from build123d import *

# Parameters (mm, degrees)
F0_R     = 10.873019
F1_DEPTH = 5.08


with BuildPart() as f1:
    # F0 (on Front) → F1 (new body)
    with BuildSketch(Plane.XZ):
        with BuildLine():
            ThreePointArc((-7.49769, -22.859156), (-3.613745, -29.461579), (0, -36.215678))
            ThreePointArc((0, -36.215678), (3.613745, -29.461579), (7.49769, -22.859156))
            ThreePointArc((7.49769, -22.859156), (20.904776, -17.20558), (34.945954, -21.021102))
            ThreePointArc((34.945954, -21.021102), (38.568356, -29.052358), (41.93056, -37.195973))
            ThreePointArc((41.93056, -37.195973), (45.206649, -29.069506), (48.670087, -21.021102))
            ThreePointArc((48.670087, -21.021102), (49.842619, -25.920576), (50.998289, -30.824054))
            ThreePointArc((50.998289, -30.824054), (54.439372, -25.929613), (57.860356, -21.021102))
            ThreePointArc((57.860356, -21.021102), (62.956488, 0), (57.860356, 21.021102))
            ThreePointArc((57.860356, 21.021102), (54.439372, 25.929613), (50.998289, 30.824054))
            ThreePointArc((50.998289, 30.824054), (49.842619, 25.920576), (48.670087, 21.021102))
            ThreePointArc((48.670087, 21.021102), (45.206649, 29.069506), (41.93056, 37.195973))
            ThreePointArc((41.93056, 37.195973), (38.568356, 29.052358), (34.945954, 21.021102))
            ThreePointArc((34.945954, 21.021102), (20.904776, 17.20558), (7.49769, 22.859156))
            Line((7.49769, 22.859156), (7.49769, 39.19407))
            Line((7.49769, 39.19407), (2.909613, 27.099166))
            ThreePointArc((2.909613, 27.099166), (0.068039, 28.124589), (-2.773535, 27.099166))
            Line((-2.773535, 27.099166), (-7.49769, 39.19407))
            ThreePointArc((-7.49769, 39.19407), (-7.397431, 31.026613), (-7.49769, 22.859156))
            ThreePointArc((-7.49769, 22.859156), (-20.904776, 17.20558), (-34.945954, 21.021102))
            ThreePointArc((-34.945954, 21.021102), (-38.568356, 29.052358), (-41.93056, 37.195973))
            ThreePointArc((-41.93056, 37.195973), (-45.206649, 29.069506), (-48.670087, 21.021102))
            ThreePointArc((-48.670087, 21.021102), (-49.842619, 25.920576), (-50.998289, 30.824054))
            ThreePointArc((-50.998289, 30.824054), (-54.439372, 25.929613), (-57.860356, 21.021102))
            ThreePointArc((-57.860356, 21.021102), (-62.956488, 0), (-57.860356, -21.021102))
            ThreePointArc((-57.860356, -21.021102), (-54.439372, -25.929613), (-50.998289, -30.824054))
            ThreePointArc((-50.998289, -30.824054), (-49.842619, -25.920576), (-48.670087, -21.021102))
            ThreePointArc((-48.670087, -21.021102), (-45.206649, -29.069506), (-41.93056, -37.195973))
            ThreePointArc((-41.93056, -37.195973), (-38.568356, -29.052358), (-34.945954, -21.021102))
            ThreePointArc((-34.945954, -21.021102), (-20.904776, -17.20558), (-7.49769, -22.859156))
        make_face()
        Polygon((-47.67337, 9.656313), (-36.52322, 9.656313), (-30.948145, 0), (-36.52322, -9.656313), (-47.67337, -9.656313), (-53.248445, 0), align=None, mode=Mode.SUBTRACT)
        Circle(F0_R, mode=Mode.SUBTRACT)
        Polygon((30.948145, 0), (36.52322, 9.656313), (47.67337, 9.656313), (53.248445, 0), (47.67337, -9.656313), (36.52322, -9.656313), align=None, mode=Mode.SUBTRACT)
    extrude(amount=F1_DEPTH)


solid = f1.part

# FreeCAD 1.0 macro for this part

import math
import FreeCAD as App
import Part
import Sketcher
from FreeCAD import Vector
Q = App.Units.Quantity

doc = App.newDocument("Part")
params = doc.addObject("Spreadsheet::Sheet", "Params")
for row, (alias, value) in enumerate([
    ("pad1_length", "0.2 in"),
], start=1):
    params.set(f"A{row}", alias)
    params.set(f"B{row}", "=" + value)
    params.setAlias(f"B{row}", alias)

body = doc.addObject("PartDesign::Body", "Body")

# Sketch on XZ plane
sketch1 = doc.addObject("Sketcher::SketchObject", "Sketch")
body.addObject(sketch1)
sketch1.AttachmentSupport = (doc.XZ_Plane, [""])
sketch1.MapMode = "FlatFace"
sketch1.addGeometry(Part.ArcOfCircle(Part.Circle(Vector(-168.741374, -122.156052, 0), Vector(0, 0, 1), 189.365781), math.radians(26.98985), math.radians(31.625544)), False)
sketch1.addGeometry(Part.ArcOfCircle(Part.Circle(Vector(168.741374, -122.156052, 0), Vector(0, 0, 1), 189.365781), math.radians(148.374456), math.radians(153.01015)), False)
sketch1.addGeometry(Part.ArcOfCircle(Part.Circle(Vector(22.3953, -39.464063, 0), Vector(0, 0, 1), 22.308333), math.radians(55.764247), math.radians(131.897858)), False)
sketch1.addGeometry(Part.ArcOfCircle(Part.Circle(Vector(-212.868903, -137.627579, 0), Vector(0, 0, 1), 273.87821), math.radians(21.512346), math.radians(25.198799)), False)
sketch1.addGeometry(Part.ArcOfCircle(Part.Circle(Vector(394.369284, -174.553882, 0), Vector(0, 0, 1), 378.2595), math.radians(156.052918), math.radians(158.707368)), False)
sketch1.addGeometry(Part.ArcOfCircle(Part.Circle(Vector(-1374.945116, -364.307794, 0), Vector(0, 0, 1), 1464.420021), math.radians(13.163117), math.radians(13.55733)), False)
sketch1.addGeometry(Part.ArcOfCircle(Part.Circle(Vector(-1140.852711, 810.774919, 0), Vector(0, 0, 1), 1459.039971), math.radians(-35.226973), math.radians(-34.757072)), False)
sketch1.addGeometry(Part.ArcOfCircle(Part.Circle(Vector(17.053312, 0, 0), Vector(0, 0, 1), 45.903176), math.radians(-27.254542), math.radians(27.254542)), False)
sketch1.addGeometry(Part.ArcOfCircle(Part.Circle(Vector(-1140.852711, -810.774919, 0), Vector(0, 0, 1), 1459.039971), math.radians(34.757072), math.radians(35.226973)), False)
sketch1.addGeometry(Part.ArcOfCircle(Part.Circle(Vector(-1374.945116, 364.307794, 0), Vector(0, 0, 1), 1464.420021), math.radians(-13.55733), math.radians(-13.163117)), False)
sketch1.addGeometry(Part.ArcOfCircle(Part.Circle(Vector(394.369284, 174.553882, 0), Vector(0, 0, 1), 378.2595), math.radians(-158.707368), math.radians(-156.052918)), False)
sketch1.addGeometry(Part.ArcOfCircle(Part.Circle(Vector(-212.868903, 137.627579, 0), Vector(0, 0, 1), 273.87821), math.radians(-25.198799), math.radians(-21.512346)), False)
sketch1.addGeometry(Part.ArcOfCircle(Part.Circle(Vector(22.3953, 39.464063, 0), Vector(0, 0, 1), 22.308333), math.radians(-131.897858), math.radians(-55.764247)), False)
sketch1.addGeometry(Part.LineSegment(Vector(7.49769, 22.859156, 0), Vector(7.49769, 39.19407, 0)), False)
sketch1.addGeometry(Part.LineSegment(Vector(7.49769, 39.19407, 0), Vector(2.909613, 27.099166, 0)), False)
sketch1.addGeometry(Part.ArcOfCircle(Part.Circle(Vector(0.068039, 23.674701, 0), Vector(0, 0, 1), 4.449888), math.radians(50.314579), math.radians(129.685421)), False)
sketch1.addGeometry(Part.LineSegment(Vector(-2.773535, 27.099166, 0), Vector(-7.49769, 39.19407, 0)), False)
sketch1.addGeometry(Part.ArcOfCircle(Part.Circle(Vector(-340.122701, 31.026613, 0), Vector(0, 0, 1), 332.72527), math.radians(-1.406589), math.radians(1.406589)), False)
sketch1.addGeometry(Part.ArcOfCircle(Part.Circle(Vector(-22.3953, 39.464063, 0), Vector(0, 0, 1), 22.308333), math.radians(-124.235753), math.radians(-48.102142)), False)
sketch1.addGeometry(Part.ArcOfCircle(Part.Circle(Vector(212.868903, 137.627579, 0), Vector(0, 0, 1), 273.87821), math.radians(-158.487654), math.radians(-154.801201)), False)
sketch1.addGeometry(Part.ArcOfCircle(Part.Circle(Vector(-394.369284, 174.553882, 0), Vector(0, 0, 1), 378.2595), math.radians(-23.947082), math.radians(-21.292632)), False)
sketch1.addGeometry(Part.ArcOfCircle(Part.Circle(Vector(1374.945116, 364.307794, 0), Vector(0, 0, 1), 1464.420021), math.radians(-166.836883), math.radians(-166.44267)), False)
sketch1.addGeometry(Part.ArcOfCircle(Part.Circle(Vector(1140.852711, -810.774919, 0), Vector(0, 0, 1), 1459.039971), math.radians(144.773027), math.radians(145.242928)), False)
sketch1.addGeometry(Part.ArcOfCircle(Part.Circle(Vector(-17.053312, 0, 0), Vector(0, 0, 1), 45.903176), math.radians(152.745458), math.radians(207.254542)), False)
sketch1.addGeometry(Part.ArcOfCircle(Part.Circle(Vector(1140.852711, 810.774919, 0), Vector(0, 0, 1), 1459.039971), math.radians(-145.242928), math.radians(-144.773027)), False)
sketch1.addGeometry(Part.ArcOfCircle(Part.Circle(Vector(1374.945116, -364.307794, 0), Vector(0, 0, 1), 1464.420021), math.radians(166.44267), math.radians(166.836883)), False)
sketch1.addGeometry(Part.ArcOfCircle(Part.Circle(Vector(-394.369284, -174.553882, 0), Vector(0, 0, 1), 378.2595), math.radians(21.292632), math.radians(23.947082)), False)
sketch1.addGeometry(Part.ArcOfCircle(Part.Circle(Vector(212.868903, -137.627579, 0), Vector(0, 0, 1), 273.87821), math.radians(154.801201), math.radians(158.487654)), False)
sketch1.addGeometry(Part.ArcOfCircle(Part.Circle(Vector(-22.3953, -39.464063, 0), Vector(0, 0, 1), 22.308333), math.radians(48.102142), math.radians(124.235753)), False)
sketch1.addGeometry(Part.LineSegment(Vector(-53.248445, 0, 0), Vector(-47.67337, 9.656313, 0)), False)
sketch1.addGeometry(Part.LineSegment(Vector(-47.67337, 9.656313, 0), Vector(-36.52322, 9.656313, 0)), False)
sketch1.addGeometry(Part.LineSegment(Vector(-36.52322, 9.656313, 0), Vector(-30.948145, 0, 0)), False)
sketch1.addGeometry(Part.LineSegment(Vector(-30.948145, 0, 0), Vector(-36.52322, -9.656313, 0)), False)
sketch1.addGeometry(Part.LineSegment(Vector(-36.52322, -9.656313, 0), Vector(-47.67337, -9.656313, 0)), False)
sketch1.addGeometry(Part.LineSegment(Vector(-47.67337, -9.656313, 0), Vector(-53.248445, 0, 0)), False)
sketch1.addGeometry(Part.Circle(Vector(0, 0, 0), Vector(0, 0, 1), 10.873019), False)
sketch1.addGeometry(Part.LineSegment(Vector(36.52322, -9.656313, 0), Vector(30.948145, 0, 0)), False)
sketch1.addGeometry(Part.LineSegment(Vector(30.948145, 0, 0), Vector(36.52322, 9.656313, 0)), False)
sketch1.addGeometry(Part.LineSegment(Vector(36.52322, 9.656313, 0), Vector(47.67337, 9.656313, 0)), False)
sketch1.addGeometry(Part.LineSegment(Vector(47.67337, 9.656313, 0), Vector(53.248445, 0, 0)), False)
sketch1.addGeometry(Part.LineSegment(Vector(53.248445, 0, 0), Vector(47.67337, -9.656313, 0)), False)
sketch1.addGeometry(Part.LineSegment(Vector(47.67337, -9.656313, 0), Vector(36.52322, -9.656313, 0)), False)
sketch1.addConstraint(Sketcher.Constraint("Coincident", 0, 1, 1, 2))
sketch1.addConstraint(Sketcher.Constraint("Coincident", 1, 1, 2, 2))
sketch1.addConstraint(Sketcher.Constraint("Coincident", 2, 1, 3, 2))
sketch1.addConstraint(Sketcher.Constraint("Coincident", 3, 1, 4, 2))
sketch1.addConstraint(Sketcher.Constraint("Coincident", 4, 1, 5, 2))
sketch1.addConstraint(Sketcher.Constraint("Coincident", 5, 1, 6, 1))
sketch1.addConstraint(Sketcher.Constraint("Coincident", 6, 2, 7, 1))
sketch1.addConstraint(Sketcher.Constraint("Coincident", 7, 2, 8, 1))
sketch1.addConstraint(Sketcher.Constraint("Coincident", 8, 2, 9, 2))
sketch1.addConstraint(Sketcher.Constraint("Coincident", 9, 1, 10, 2))
sketch1.addConstraint(Sketcher.Constraint("Coincident", 10, 1, 11, 2))
sketch1.addConstraint(Sketcher.Constraint("Coincident", 11, 1, 12, 2))
sketch1.addConstraint(Sketcher.Constraint("Coincident", 12, 1, 13, 1))
sketch1.addConstraint(Sketcher.Constraint("Coincident", 13, 2, 14, 1))
sketch1.addConstraint(Sketcher.Constraint("Coincident", 14, 2, 15, 1))
sketch1.addConstraint(Sketcher.Constraint("Coincident", 15, 2, 16, 1))
sketch1.addConstraint(Sketcher.Constraint("Coincident", 16, 2, 17, 2))
sketch1.addConstraint(Sketcher.Constraint("Coincident", 17, 1, 18, 2))
sketch1.addConstraint(Sketcher.Constraint("Coincident", 18, 1, 19, 2))
sketch1.addConstraint(Sketcher.Constraint("Coincident", 19, 1, 20, 2))
sketch1.addConstraint(Sketcher.Constraint("Coincident", 20, 1, 21, 2))
sketch1.addConstraint(Sketcher.Constraint("Coincident", 21, 1, 22, 1))
sketch1.addConstraint(Sketcher.Constraint("Coincident", 22, 2, 23, 1))
sketch1.addConstraint(Sketcher.Constraint("Coincident", 23, 2, 24, 1))
sketch1.addConstraint(Sketcher.Constraint("Coincident", 24, 2, 25, 2))
sketch1.addConstraint(Sketcher.Constraint("Coincident", 25, 1, 26, 2))
sketch1.addConstraint(Sketcher.Constraint("Coincident", 26, 1, 27, 2))
sketch1.addConstraint(Sketcher.Constraint("Coincident", 27, 1, 28, 2))
sketch1.addConstraint(Sketcher.Constraint("Coincident", 28, 1, 0, 2))
sketch1.addConstraint(Sketcher.Constraint("Coincident", 29, 2, 30, 1))
sketch1.addConstraint(Sketcher.Constraint("Coincident", 30, 2, 31, 1))
sketch1.addConstraint(Sketcher.Constraint("Coincident", 31, 2, 32, 1))
sketch1.addConstraint(Sketcher.Constraint("Coincident", 32, 2, 33, 1))
sketch1.addConstraint(Sketcher.Constraint("Coincident", 33, 2, 34, 1))
sketch1.addConstraint(Sketcher.Constraint("Coincident", 34, 2, 29, 1))
sketch1.addConstraint(Sketcher.Constraint("Coincident", 36, 2, 37, 1))
sketch1.addConstraint(Sketcher.Constraint("Coincident", 37, 2, 38, 1))
sketch1.addConstraint(Sketcher.Constraint("Coincident", 38, 2, 39, 1))
sketch1.addConstraint(Sketcher.Constraint("Coincident", 39, 2, 40, 1))
sketch1.addConstraint(Sketcher.Constraint("Coincident", 40, 2, 41, 1))
sketch1.addConstraint(Sketcher.Constraint("Coincident", 41, 2, 36, 1))
sketch1.addConstraint(Sketcher.Constraint("Vertical", 13))
sketch1.addConstraint(Sketcher.Constraint("Horizontal", 30))
sketch1.addConstraint(Sketcher.Constraint("Horizontal", 33))
sketch1.addConstraint(Sketcher.Constraint("Horizontal", 38))
sketch1.addConstraint(Sketcher.Constraint("Horizontal", 41))
sketch1.addConstraint(Sketcher.Constraint("Coincident", 35, 3, -1, 1))
sketch1.addConstraint(Sketcher.Constraint("Equal", 0, 1))
sketch1.addConstraint(Sketcher.Constraint("Equal", 6, 8))
sketch1.addConstraint(Sketcher.Constraint("Equal", 5, 9))
sketch1.addConstraint(Sketcher.Constraint("Equal", 4, 10))
sketch1.addConstraint(Sketcher.Constraint("Equal", 3, 11))
sketch1.addConstraint(Sketcher.Constraint("Equal", 2, 12))
sketch1.addConstraint(Sketcher.Constraint("Equal", 12, 18))
sketch1.addConstraint(Sketcher.Constraint("Equal", 11, 19))
sketch1.addConstraint(Sketcher.Constraint("Equal", 10, 20))
sketch1.addConstraint(Sketcher.Constraint("Equal", 9, 21))
sketch1.addConstraint(Sketcher.Constraint("Equal", 8, 22))
sketch1.addConstraint(Sketcher.Constraint("Equal", 7, 23))
sketch1.addConstraint(Sketcher.Constraint("Equal", 22, 24))
sketch1.addConstraint(Sketcher.Constraint("Equal", 21, 25))
sketch1.addConstraint(Sketcher.Constraint("Equal", 20, 26))
sketch1.addConstraint(Sketcher.Constraint("Equal", 19, 27))
sketch1.addConstraint(Sketcher.Constraint("Equal", 18, 28))
sketch1.addConstraint(Sketcher.Constraint("Symmetric", 2, 3, 18, 3, -1, 1))
sketch1.addConstraint(Sketcher.Constraint("Symmetric", 3, 3, 19, 3, -1, 1))
sketch1.addConstraint(Sketcher.Constraint("Symmetric", 4, 3, 20, 3, -1, 1))
sketch1.addConstraint(Sketcher.Constraint("Symmetric", 5, 3, 21, 3, -1, 1))
sketch1.addConstraint(Sketcher.Constraint("Symmetric", 6, 3, 22, 3, -1, 1))
sketch1.addConstraint(Sketcher.Constraint("Symmetric", 7, 3, 23, 3, -1, 1))
sketch1.addConstraint(Sketcher.Constraint("Symmetric", 8, 3, 24, 3, -1, 1))
sketch1.addConstraint(Sketcher.Constraint("Symmetric", 9, 3, 25, 3, -1, 1))
sketch1.addConstraint(Sketcher.Constraint("Symmetric", 10, 3, 26, 3, -1, 1))
sketch1.addConstraint(Sketcher.Constraint("Symmetric", 11, 3, 27, 3, -1, 1))
sketch1.addConstraint(Sketcher.Constraint("Symmetric", 12, 3, 28, 3, -1, 1))
sketch1.addConstraint(Sketcher.Constraint("Symmetric", 31, 2, 36, 2, -1, 1))
sketch1.addConstraint(Sketcher.Constraint("Symmetric", 32, 2, 37, 2, -1, 1))
sketch1.addConstraint(Sketcher.Constraint("Symmetric", 34, 2, 39, 2, -1, 1))
sketch1.addConstraint(Sketcher.Constraint("Symmetric", 29, 2, 40, 2, -1, 1))
sketch1.addConstraint(Sketcher.Constraint("Symmetric", 0, 3, 1, 3, -2))
sketch1.addConstraint(Sketcher.Constraint("Symmetric", 12, 3, 18, 3, -2))
sketch1.addConstraint(Sketcher.Constraint("Symmetric", 11, 3, 19, 3, -2))
sketch1.addConstraint(Sketcher.Constraint("Symmetric", 10, 3, 20, 3, -2))
sketch1.addConstraint(Sketcher.Constraint("Symmetric", 9, 3, 21, 3, -2))
sketch1.addConstraint(Sketcher.Constraint("Symmetric", 8, 3, 22, 3, -2))
sketch1.addConstraint(Sketcher.Constraint("Symmetric", 13, 2, 16, 2, -2))
sketch1.addConstraint(Sketcher.Constraint("Symmetric", 30, 2, 37, 2, -2))
sketch1.addConstraint(Sketcher.Constraint("PointOnObject", 7, 3, -1))
sketch1.addConstraint(Sketcher.Constraint("PointOnObject", 31, 2, -1))
sketch1.addConstraint(Sketcher.Constraint("PointOnObject", 34, 2, -1))
sketch1.addConstraint(Sketcher.Constraint("Parallel", 29, 32))
sketch1.addConstraint(Sketcher.Constraint("Parallel", 31, 34))
sketch1.addConstraint(Sketcher.Constraint("Parallel", 34, 36))
sketch1.addConstraint(Sketcher.Constraint("Parallel", 36, 39))
sketch1.addConstraint(Sketcher.Constraint("Horizontal", 2, 1, 4, 1))
sketch1.addConstraint(Sketcher.Constraint("Horizontal", 4, 1, 6, 2))
sketch1.addConstraint(Sketcher.Constraint("Horizontal", 14, 2, 15, 2))
sketch1.addConstraint(Sketcher.Constraint("Vertical", 1, 1, 12, 1))
sketch1.addConstraint(Sketcher.Constraint("Vertical", 16, 2, 17, 1))
sketch1.addConstraint(Sketcher.Constraint("Angle", 29, Q("60 deg")))
sketch1.addConstraint(Sketcher.Constraint("Radius", 4, 378.2595))
sketch1.addConstraint(Sketcher.Constraint("Radius", 0, 189.365781))
sketch1.addConstraint(Sketcher.Constraint("Radius", 3, 273.87821))
sketch1.addConstraint(Sketcher.Constraint("Radius", 5, 1464.420021))
sketch1.addConstraint(Sketcher.Constraint("Radius", 6, 1459.039971))
sketch1.addConstraint(Sketcher.Constraint("Radius", 15, 4.449888))
sketch1.addConstraint(Sketcher.Constraint("Radius", 17, 332.72527))
sketch1.addConstraint(Sketcher.Constraint("Diameter", 35, 21.746038))
sketch1.addConstraint(Sketcher.Constraint("DistanceY", 4, 3, -1, 1, Q("6.8722001 in")))
sketch1.addConstraint(Sketcher.Constraint("Radius", 2, 22.308333))
sketch1.addConstraint(Sketcher.Constraint("Radius", 7, 45.903176))
sketch1.addConstraint(Sketcher.Constraint("DistanceX", 30, 1, 30, 2, 11.15015))
sketch1.addConstraint(Sketcher.Constraint("DistanceX", -1, 1, 2, 3, 22.3953))
sketch1.addConstraint(Sketcher.Constraint("DistanceY", -1, 1, 15, 3, 23.674701))
sketch1.addConstraint(Sketcher.Constraint("DistanceX", 17, 3, -1, 1, 340.122701))
sketch1.addConstraint(Sketcher.Constraint("Distance", 29, 11.15015))
sketch1.addConstraint(Sketcher.Constraint("DistanceY", 13, 1, 13, 2, 16.334914))
sketch1.addConstraint(Sketcher.Constraint("DistanceY", 0, 3, -1, 1, 122.156052))
sketch1.addConstraint(Sketcher.Constraint("DistanceY", 3, 3, -1, 1, 137.627579))
sketch1.addConstraint(Sketcher.Constraint("DistanceX", 6, 3, -1, 1, 1140.852711))
sketch1.addConstraint(Sketcher.Constraint("DistanceY", -1, 1, 6, 3, 810.774919))
sketch1.addConstraint(Sketcher.Constraint("DistanceX", -1, 1, 7, 3, 17.053312))
sketch1.addConstraint(Sketcher.Constraint("DistanceX", -1, 1, 15, 3, 0.068039))
sketch1.addConstraint(Sketcher.Constraint("DistanceX", -1, 1, 3, 1, 41.93056))
sketch1.addConstraint(Sketcher.Constraint("DistanceY", -1, 1, 13, 2, 39.19407))
sketch1.addConstraint(Sketcher.Constraint("DistanceX", 29, 2, -1, 1, 47.67337))
sketch1.addConstraint(Sketcher.Constraint("Distance", 14, 12.935886))
sketch1.addConstraint(Sketcher.Constraint("DistanceX", 5, 3, -1, 1, 1374.945116))
pad1 = doc.addObject("PartDesign::Pad", "Pad")
body.addObject(pad1)
pad1.Profile = sketch1
pad1.setExpression("Length", "Params.pad1_length")

doc.recompute()
